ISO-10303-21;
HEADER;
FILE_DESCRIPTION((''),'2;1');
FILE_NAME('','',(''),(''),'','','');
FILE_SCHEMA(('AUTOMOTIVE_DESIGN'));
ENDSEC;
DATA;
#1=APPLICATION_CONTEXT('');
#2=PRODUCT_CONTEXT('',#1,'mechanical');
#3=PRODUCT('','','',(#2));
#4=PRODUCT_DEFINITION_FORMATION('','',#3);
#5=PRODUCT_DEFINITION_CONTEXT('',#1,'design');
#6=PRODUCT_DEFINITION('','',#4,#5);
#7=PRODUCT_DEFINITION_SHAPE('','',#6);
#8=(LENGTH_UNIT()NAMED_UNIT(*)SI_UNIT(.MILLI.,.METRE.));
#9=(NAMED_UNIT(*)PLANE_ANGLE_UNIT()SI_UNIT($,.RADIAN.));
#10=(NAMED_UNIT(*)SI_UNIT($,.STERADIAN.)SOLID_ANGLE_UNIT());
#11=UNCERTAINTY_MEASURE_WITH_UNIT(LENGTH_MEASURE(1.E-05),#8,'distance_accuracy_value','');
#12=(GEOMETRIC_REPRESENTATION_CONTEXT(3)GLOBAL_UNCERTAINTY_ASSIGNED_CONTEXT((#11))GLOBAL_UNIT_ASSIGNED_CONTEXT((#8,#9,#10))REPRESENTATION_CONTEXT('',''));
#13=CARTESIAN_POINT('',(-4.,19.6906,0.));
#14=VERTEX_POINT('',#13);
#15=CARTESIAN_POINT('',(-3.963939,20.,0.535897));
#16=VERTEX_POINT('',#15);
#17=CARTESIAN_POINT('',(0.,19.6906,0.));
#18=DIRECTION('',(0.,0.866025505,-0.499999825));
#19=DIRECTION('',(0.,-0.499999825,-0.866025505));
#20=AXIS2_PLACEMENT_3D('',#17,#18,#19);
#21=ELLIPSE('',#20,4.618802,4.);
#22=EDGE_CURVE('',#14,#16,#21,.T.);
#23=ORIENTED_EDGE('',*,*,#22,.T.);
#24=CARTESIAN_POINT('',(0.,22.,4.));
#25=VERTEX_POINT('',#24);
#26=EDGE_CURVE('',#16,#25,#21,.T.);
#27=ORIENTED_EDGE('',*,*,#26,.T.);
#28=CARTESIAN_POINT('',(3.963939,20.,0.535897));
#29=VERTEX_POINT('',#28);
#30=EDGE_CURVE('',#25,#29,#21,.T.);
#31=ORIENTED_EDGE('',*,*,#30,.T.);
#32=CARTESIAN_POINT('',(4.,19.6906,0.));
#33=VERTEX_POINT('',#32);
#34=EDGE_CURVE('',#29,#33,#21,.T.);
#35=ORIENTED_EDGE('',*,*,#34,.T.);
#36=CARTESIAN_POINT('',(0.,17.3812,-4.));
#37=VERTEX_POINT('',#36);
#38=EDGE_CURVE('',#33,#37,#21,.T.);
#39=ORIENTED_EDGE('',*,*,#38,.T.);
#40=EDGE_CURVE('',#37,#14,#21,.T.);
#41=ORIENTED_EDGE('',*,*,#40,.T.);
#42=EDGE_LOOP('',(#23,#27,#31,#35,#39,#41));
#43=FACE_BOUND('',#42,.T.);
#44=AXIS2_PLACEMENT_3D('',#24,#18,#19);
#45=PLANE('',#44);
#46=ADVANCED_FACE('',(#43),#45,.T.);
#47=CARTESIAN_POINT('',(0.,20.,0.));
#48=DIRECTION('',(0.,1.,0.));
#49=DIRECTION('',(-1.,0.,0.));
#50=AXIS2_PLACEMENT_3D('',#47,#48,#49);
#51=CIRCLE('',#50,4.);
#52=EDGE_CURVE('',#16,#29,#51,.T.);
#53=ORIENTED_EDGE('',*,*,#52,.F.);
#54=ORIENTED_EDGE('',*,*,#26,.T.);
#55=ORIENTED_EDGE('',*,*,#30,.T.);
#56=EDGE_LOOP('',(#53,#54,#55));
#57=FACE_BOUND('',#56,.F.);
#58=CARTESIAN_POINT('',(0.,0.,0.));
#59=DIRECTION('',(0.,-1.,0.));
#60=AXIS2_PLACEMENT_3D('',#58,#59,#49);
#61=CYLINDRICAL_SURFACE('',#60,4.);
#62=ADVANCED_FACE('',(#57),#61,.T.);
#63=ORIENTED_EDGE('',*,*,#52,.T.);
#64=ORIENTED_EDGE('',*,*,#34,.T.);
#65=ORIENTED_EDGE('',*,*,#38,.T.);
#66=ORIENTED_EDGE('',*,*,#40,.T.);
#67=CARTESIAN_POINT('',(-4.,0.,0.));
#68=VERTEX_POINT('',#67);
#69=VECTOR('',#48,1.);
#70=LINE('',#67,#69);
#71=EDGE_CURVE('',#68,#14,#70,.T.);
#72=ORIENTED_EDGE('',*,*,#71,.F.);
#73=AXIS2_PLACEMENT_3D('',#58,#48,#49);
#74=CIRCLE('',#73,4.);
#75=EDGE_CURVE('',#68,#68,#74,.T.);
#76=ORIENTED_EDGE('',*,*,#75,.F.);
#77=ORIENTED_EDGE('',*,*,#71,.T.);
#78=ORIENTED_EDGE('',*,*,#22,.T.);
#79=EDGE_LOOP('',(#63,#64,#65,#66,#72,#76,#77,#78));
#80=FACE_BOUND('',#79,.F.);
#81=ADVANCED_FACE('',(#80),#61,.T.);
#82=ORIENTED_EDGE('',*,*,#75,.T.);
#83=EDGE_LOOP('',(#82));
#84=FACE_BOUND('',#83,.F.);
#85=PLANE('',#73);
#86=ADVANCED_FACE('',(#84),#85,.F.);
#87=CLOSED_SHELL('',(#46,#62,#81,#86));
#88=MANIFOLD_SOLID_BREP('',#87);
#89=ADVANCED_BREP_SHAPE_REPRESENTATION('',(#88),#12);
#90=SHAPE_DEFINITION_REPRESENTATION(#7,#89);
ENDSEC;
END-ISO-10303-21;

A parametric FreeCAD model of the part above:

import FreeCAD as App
import Part
import Sketcher
from FreeCAD import Vector
Q = App.Units.Quantity


def add_polygon(sketch, points):
    """Adds a closed chain of lines whose ends are joined by coincident constraints."""
    first, n = sketch.GeometryCount, len(points)
    for a, b in zip(points, points[1:] + points[:1]):
        sketch.addGeometry(Part.LineSegment(App.Vector(*a, 0), App.Vector(*b, 0)), False)
    for i in range(n):
        sketch.addConstraint(Sketcher.Constraint("Coincident", first + i, 2, first + (i + 1) % n, 1))

doc = App.newDocument("Part")
body = doc.addObject("PartDesign::Body", "Body")

# Sketch on XZ plane
sketch1 = doc.addObject("Sketcher::SketchObject", "Sketch")
body.addObject(sketch1)
sketch1.AttachmentSupport = (doc.XZ_Plane, [""])
sketch1.MapMode = "FlatFace"
sketch1.addGeometry(Part.Circle(Vector(0, 0, 0), Vector(0, 0, 1), 4), False)
sketch1.addConstraint(Sketcher.Constraint("Coincident", 0, 3, -1, 1))
sketch1.addConstraint(Sketcher.Constraint("Diameter", 0, 8.0))
pad1 = doc.addObject("PartDesign::Pad", "Pad")
body.addObject(pad1)
pad1.Profile = sketch1
pad1.Length = 20
pad1.Reversed = True

# Sketch on XZ plane
sketch2 = doc.addObject("Sketcher::SketchObject", "Sketch001")
body.addObject(sketch2)
sketch2.AttachmentSupport = (doc.XZ_Plane, [""])
sketch2.MapMode = "FlatFace"
sketch2.AttachmentOffset = App.Placement(Vector(0, 0, -20), App.Rotation())
sketch2.addGeometry(Part.Circle(Vector(0, 0, 0), Vector(0, 0, 1), 4), False)
sketch2.addConstraint(Sketcher.Constraint("Coincident", 0, 3, -1, 1))
sketch2.addConstraint(Sketcher.Constraint("Diameter", 0, 8.0))
pad2 = doc.addObject("PartDesign::Pad", "Pad001")
body.addObject(pad2)
pad2.Profile = sketch2
pad2.Length = 2
pad2.Reversed = True

# Sketch on YZ plane
sketch3 = doc.addObject("Sketcher::SketchObject", "Sketch002")
body.addObject(sketch3)
sketch3.AttachmentSupport = (doc.YZ_Plane, [""])
sketch3.MapMode = "FlatFace"
add_polygon(sketch3, [(17.3812, -4), (22, -4), (22, 4)])  # lines 0-2
sketch3.addConstraint(Sketcher.Constraint("Horizontal", 0))
sketch3.addConstraint(Sketcher.Constraint("Vertical", 1))
sketch3.addConstraint(Sketcher.Constraint("Angle", 2, Q("-120 deg")))
sketch3.addConstraint(Sketcher.Constraint("DistanceY", 1, 1, 1, 2, 8.0))
sketch3.addConstraint(Sketcher.Constraint("DistanceX", -1, 1, 0, 2, 22.0))
sketch3.addConstraint(Sketcher.Constraint("DistanceY", 0, 2, -1, 1, 4.0))
pocket1 = doc.addObject("PartDesign::Pocket", "Pocket")
body.addObject(pocket1)
pocket1.Profile = sketch3
pocket1.Type = "ThroughAll"
pocket1.Midplane = True

doc.recompute()
